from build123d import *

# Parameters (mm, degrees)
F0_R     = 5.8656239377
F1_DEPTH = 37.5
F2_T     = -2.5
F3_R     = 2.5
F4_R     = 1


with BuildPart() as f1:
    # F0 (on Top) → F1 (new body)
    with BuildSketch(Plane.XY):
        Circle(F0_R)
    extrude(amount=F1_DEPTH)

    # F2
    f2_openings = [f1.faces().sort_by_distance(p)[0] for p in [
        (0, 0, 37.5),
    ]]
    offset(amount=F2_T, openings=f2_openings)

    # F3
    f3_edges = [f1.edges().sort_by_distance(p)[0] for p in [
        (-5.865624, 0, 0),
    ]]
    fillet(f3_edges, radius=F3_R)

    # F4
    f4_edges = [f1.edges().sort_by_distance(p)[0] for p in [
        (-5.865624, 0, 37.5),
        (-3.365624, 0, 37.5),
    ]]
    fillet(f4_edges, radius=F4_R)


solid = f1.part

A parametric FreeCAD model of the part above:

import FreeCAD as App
import Part
import Sketcher


def edges_at(feature, points):
    """Names of the edges that pass closest to the given points."""
    edges = feature.Shape.Edges
    near = lambda p: min(range(len(edges)), key=lambda i: edges[i].distToShape(Part.Vertex(*p))[0])
    return sorted({f"Edge{near(p) + 1}" for p in points})


def faces_at(feature, points):
    """Names of the faces that lie closest to the given points."""
    faces = feature.Shape.Faces
    near = lambda p: min(range(len(faces)), key=lambda i: faces[i].distToShape(Part.Vertex(*p))[0])
    return sorted({f"Face{near(p) + 1}" for p in points})

doc = App.newDocument("Part")
body = doc.addObject("PartDesign::Body", "Body")

# Sketch on XY plane
sketch1 = body.newObject("Sketcher::SketchObject", "Sketch")
sketch1.AttachmentSupport = (doc.getObject("XY_Plane"), [""])
sketch1.MapMode = "FlatFace"
sketch1.addGeometry(Part.Circle(App.Vector(0, 0, 0), App.Vector(0, 0, 1), 5.865624), False)
sketch1.addConstraint([
    Sketcher.Constraint("Coincident", 0, 3, -1, 1),
    Sketcher.Constraint("Diameter", 0, 11.731248),
])
pad1 = body.newObject("PartDesign::Pad", "Pad")
pad1.Profile = sketch1
pad1.Length = 37.5
doc.recompute()

thickness = body.newObject("PartDesign::Thickness", "Thickness")
thickness.Base = (pad1, faces_at(pad1, [(0, 0, 37.5)]))
thickness.Value = 2.5
thickness.Reversed = True
thickness.Join = "Arc"
doc.recompute()

fillet = body.newObject("PartDesign::Fillet", "Fillet")
fillet.Base = (thickness, edges_at(thickness, [(-5.866, 0, 0)]))
fillet.Radius = 2.5
doc.recompute()

fillet2 = body.newObject("PartDesign::Fillet", "Fillet001")
fillet2.Base = (fillet, edges_at(fillet, [(-5.866, 0, 37.5), (-3.366, 0, 37.5)]))
fillet2.Radius = 1

doc.recompute()
